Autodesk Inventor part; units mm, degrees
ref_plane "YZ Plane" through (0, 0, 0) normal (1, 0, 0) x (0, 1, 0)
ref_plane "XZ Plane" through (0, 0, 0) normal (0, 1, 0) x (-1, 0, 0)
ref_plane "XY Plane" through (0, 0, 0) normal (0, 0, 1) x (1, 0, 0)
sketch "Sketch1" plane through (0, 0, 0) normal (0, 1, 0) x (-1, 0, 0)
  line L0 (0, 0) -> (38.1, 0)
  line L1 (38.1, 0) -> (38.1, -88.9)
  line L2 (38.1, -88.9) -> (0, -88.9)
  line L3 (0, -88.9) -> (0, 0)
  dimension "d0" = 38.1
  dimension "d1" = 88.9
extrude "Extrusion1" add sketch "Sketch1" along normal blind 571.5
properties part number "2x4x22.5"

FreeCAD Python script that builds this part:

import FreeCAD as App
import Part
import Sketcher

V = App.Vector
Q = App.Units.Quantity

doc = App.newDocument("Part")
body = doc.addObject("PartDesign::Body", "Body")

# Sketch on XZ plane
sketch1 = body.newObject("Sketcher::SketchObject", "Sketch")
sketch1.AttachmentSupport = (doc.getObject("XZ_Plane"), [""])
sketch1.MapMode = "FlatFace"
sketch1.addGeometry([
    Part.LineSegment(V(-38, 0, 0), V(0, 0, 0)),
    Part.LineSegment(V(0, 0, 0), V(0, -89, 0)),
    Part.LineSegment(V(0, -89, 0), V(-38, -89, 0)),
    Part.LineSegment(V(-38, -89, 0), V(-38, 0, 0)),
], False)
sketch1.addConstraint([
    Sketcher.Constraint("Coincident", 0, 2, 1, 1),
    Sketcher.Constraint("Coincident", 1, 2, 2, 1),
    Sketcher.Constraint("Coincident", 2, 2, 3, 1),
    Sketcher.Constraint("Coincident", 3, 2, 0, 1),
    Sketcher.Constraint("Horizontal", 0),
    Sketcher.Constraint("Vertical", 1),
    Sketcher.Constraint("Horizontal", 2),
    Sketcher.Constraint("Vertical", 3),
    Sketcher.Constraint("Coincident", 0, 2, -1, 1),
    Sketcher.Constraint("DistanceX", 0, 1, 0, 2, Q("1.5 in")),
    Sketcher.Constraint("DistanceY", 1, 2, 1, 1, Q("3.5 in")),
])
pad1 = body.newObject("PartDesign::Pad", "Pad")
pad1.Profile = sketch1
pad1.Length = Q("22.5 in")
pad1.Reversed = True

doc.recompute()
